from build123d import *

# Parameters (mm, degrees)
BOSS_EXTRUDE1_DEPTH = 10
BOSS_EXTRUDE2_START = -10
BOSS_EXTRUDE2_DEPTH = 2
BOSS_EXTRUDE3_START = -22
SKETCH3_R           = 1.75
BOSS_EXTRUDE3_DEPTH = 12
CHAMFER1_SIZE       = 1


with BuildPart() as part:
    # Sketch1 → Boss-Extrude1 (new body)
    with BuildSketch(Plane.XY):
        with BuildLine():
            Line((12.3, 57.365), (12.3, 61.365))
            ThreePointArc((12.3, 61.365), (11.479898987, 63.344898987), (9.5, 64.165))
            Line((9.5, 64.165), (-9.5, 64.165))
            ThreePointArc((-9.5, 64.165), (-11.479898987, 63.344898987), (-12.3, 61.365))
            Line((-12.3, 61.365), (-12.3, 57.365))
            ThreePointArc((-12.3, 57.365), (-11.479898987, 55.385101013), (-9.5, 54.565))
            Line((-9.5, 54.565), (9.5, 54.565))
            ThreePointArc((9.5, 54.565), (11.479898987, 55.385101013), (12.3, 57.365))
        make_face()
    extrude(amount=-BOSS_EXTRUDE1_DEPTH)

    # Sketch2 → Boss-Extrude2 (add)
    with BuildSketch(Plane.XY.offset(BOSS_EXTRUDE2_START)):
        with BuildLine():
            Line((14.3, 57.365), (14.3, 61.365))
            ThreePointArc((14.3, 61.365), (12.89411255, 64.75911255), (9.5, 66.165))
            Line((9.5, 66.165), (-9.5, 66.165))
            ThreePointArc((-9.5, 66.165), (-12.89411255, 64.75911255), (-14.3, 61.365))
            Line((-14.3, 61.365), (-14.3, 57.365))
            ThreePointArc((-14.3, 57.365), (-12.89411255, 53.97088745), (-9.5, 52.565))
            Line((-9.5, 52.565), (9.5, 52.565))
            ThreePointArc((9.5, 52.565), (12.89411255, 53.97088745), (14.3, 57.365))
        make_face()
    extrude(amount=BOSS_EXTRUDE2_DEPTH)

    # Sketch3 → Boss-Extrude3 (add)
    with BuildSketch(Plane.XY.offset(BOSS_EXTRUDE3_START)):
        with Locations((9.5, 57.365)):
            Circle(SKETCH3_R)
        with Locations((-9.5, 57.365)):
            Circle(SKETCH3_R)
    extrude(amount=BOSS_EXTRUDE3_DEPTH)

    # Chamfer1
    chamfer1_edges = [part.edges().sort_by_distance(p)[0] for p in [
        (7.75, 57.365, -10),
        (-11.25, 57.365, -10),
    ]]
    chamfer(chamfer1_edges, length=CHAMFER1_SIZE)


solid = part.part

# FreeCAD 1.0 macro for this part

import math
import FreeCAD as App
import Part
import Sketcher

V = App.Vector


def edges_at(feature, points):
    """Names of the edges that pass closest to the given points."""
    edges = feature.Shape.Edges
    near = lambda p: min(range(len(edges)), key=lambda i: edges[i].distToShape(Part.Vertex(*p))[0])
    return sorted({f"Edge{near(p) + 1}" for p in points})

doc = App.newDocument("Part")
body = doc.addObject("PartDesign::Body", "Body")

sketch1 = body.newObject("Sketcher::SketchObject", "Sketch")
sketch1.AttachmentSupport = (doc.getObject("XY_Plane"), [""])
sketch1.MapMode = "FlatFace"
sketch1.addGeometry([
    Part.LineSegment(V(12.3, 57.365, 0), V(12.3, 61.365, 0)),
    Part.ArcOfCircle(Part.Circle(V(9.5, 61.365, 0), V(0, 0, 1), 2.8), math.radians(0), math.radians(90)),
    Part.LineSegment(V(9.5, 64.165, 0), V(-9.5, 64.165, 0)),
    Part.ArcOfCircle(Part.Circle(V(-9.5, 61.365, 0), V(0, 0, 1), 2.8), math.radians(90), math.radians(180)),
    Part.LineSegment(V(-12.3, 61.365, 0), V(-12.3, 57.365, 0)),
    Part.ArcOfCircle(Part.Circle(V(-9.5, 57.365, 0), V(0, 0, 1), 2.8), math.radians(-180), math.radians(-90)),
    Part.LineSegment(V(-9.5, 54.565, 0), V(9.5, 54.565, 0)),
    Part.ArcOfCircle(Part.Circle(V(9.5, 57.365, 0), V(0, 0, 1), 2.8), math.radians(-90), math.radians(0)),
], False)
sketch1.addConstraint([
    Sketcher.Constraint("Tangent", 0, 2, 1, 1),
    Sketcher.Constraint("Tangent", 1, 2, 2, 1),
    Sketcher.Constraint("Tangent", 2, 2, 3, 1),
    Sketcher.Constraint("Tangent", 3, 2, 4, 1),
    Sketcher.Constraint("Tangent", 4, 2, 5, 1),
    Sketcher.Constraint("Tangent", 5, 2, 6, 1),
    Sketcher.Constraint("Tangent", 6, 2, 7, 1),
    Sketcher.Constraint("Tangent", 7, 2, 0, 1),
    Sketcher.Constraint("Vertical", 0),
    Sketcher.Constraint("Horizontal", 2),
    Sketcher.Constraint("Vertical", 4),
    Sketcher.Constraint("Horizontal", 6),
    Sketcher.Constraint("Equal", 1, 3),
    Sketcher.Constraint("Equal", 3, 5),
    Sketcher.Constraint("Equal", 5, 7),
    Sketcher.Constraint("Radius", 1, 2.8),
    Sketcher.Constraint("DistanceX", 2, 2, 2, 1, 19.0),
    Sketcher.Constraint("DistanceY", 0, 1, 0, 2, 4.0),
    Sketcher.Constraint("DistanceX", -1, 1, 1, 3, 9.5),
    Sketcher.Constraint("DistanceY", -1, 1, 1, 3, 61.365),
])
pad1 = body.newObject("PartDesign::Pad", "Pad")
pad1.Profile = sketch1
pad1.Length = 10
pad1.Reversed = True

sketch2 = body.newObject("Sketcher::SketchObject", "Sketch001")
sketch2.AttachmentSupport = (doc.getObject("XY_Plane"), [""])
sketch2.MapMode = "FlatFace"
sketch2.AttachmentOffset = App.Placement(V(0, 0, -10), App.Rotation())
sketch2.addGeometry([
    Part.LineSegment(V(14.3, 57.365, 0), V(14.3, 61.365, 0)),
    Part.ArcOfCircle(Part.Circle(V(9.5, 61.365, 0), V(0, 0, 1), 4.8), math.radians(0), math.radians(90)),
    Part.LineSegment(V(9.5, 66.165, 0), V(-9.5, 66.165, 0)),
    Part.ArcOfCircle(Part.Circle(V(-9.5, 61.365, 0), V(0, 0, 1), 4.8), math.radians(90), math.radians(180)),
    Part.LineSegment(V(-14.3, 61.365, 0), V(-14.3, 57.365, 0)),
    Part.ArcOfCircle(Part.Circle(V(-9.5, 57.365, 0), V(0, 0, 1), 4.8), math.radians(180), math.radians(270)),
    Part.LineSegment(V(-9.5, 52.565, 0), V(9.5, 52.565, 0)),
    Part.ArcOfCircle(Part.Circle(V(9.5, 57.365, 0), V(0, 0, 1), 4.8), math.radians(-90), math.radians(0)),
], False)
sketch2.addConstraint([
    Sketcher.Constraint("Tangent", 0, 2, 1, 1),
    Sketcher.Constraint("Tangent", 1, 2, 2, 1),
    Sketcher.Constraint("Tangent", 2, 2, 3, 1),
    Sketcher.Constraint("Tangent", 3, 2, 4, 1),
    Sketcher.Constraint("Tangent", 4, 2, 5, 1),
    Sketcher.Constraint("Tangent", 5, 2, 6, 1),
    Sketcher.Constraint("Tangent", 6, 2, 7, 1),
    Sketcher.Constraint("Tangent", 7, 2, 0, 1),
    Sketcher.Constraint("Vertical", 0),
    Sketcher.Constraint("Horizontal", 2),
    Sketcher.Constraint("Vertical", 4),
    Sketcher.Constraint("Horizontal", 6),
    Sketcher.Constraint("Equal", 1, 3),
    Sketcher.Constraint("Equal", 3, 5),
    Sketcher.Constraint("Equal", 5, 7),
    Sketcher.Constraint("Radius", 1, 4.8),
    Sketcher.Constraint("DistanceX", 2, 2, 2, 1, 19.0),
    Sketcher.Constraint("DistanceY", 0, 1, 0, 2, 4.0),
    Sketcher.Constraint("DistanceX", -1, 1, 1, 3, 9.5),
    Sketcher.Constraint("DistanceY", -1, 1, 1, 3, 61.365),
])
pad2 = body.newObject("PartDesign::Pad", "Pad001")
pad2.Profile = sketch2
pad2.Length = 2

sketch3 = body.newObject("Sketcher::SketchObject", "Sketch002")
sketch3.AttachmentSupport = (doc.getObject("XY_Plane"), [""])
sketch3.MapMode = "FlatFace"
sketch3.AttachmentOffset = App.Placement(V(0, 0, -22), App.Rotation())
sketch3.addGeometry([
    Part.Circle(V(9.5, 57.365, 0), V(0, 0, 1), 1.75),
    Part.Circle(V(-9.5, 57.365, 0), V(0, 0, 1), 1.75),
], False)
sketch3.addConstraint([
    Sketcher.Constraint("Equal", 0, 1),
    Sketcher.Constraint("Symmetric", 0, 3, 1, 3, -2),
    Sketcher.Constraint("Diameter", 0, 3.5),
    Sketcher.Constraint("DistanceX", 1, 3, 0, 3, 19.0),
    Sketcher.Constraint("DistanceY", -1, 1, 0, 3, 57.365),
])
pad3 = body.newObject("PartDesign::Pad", "Pad002")
pad3.Profile = sketch3
pad3.Length = 12
doc.recompute()

chamfer = body.newObject("PartDesign::Chamfer", "Chamfer")
chamfer.Base = (pad3, edges_at(pad3, [(7.75, 57.365, -10), (-11.25, 57.365, -10)]))
chamfer.Size = 1

doc.recompute()
